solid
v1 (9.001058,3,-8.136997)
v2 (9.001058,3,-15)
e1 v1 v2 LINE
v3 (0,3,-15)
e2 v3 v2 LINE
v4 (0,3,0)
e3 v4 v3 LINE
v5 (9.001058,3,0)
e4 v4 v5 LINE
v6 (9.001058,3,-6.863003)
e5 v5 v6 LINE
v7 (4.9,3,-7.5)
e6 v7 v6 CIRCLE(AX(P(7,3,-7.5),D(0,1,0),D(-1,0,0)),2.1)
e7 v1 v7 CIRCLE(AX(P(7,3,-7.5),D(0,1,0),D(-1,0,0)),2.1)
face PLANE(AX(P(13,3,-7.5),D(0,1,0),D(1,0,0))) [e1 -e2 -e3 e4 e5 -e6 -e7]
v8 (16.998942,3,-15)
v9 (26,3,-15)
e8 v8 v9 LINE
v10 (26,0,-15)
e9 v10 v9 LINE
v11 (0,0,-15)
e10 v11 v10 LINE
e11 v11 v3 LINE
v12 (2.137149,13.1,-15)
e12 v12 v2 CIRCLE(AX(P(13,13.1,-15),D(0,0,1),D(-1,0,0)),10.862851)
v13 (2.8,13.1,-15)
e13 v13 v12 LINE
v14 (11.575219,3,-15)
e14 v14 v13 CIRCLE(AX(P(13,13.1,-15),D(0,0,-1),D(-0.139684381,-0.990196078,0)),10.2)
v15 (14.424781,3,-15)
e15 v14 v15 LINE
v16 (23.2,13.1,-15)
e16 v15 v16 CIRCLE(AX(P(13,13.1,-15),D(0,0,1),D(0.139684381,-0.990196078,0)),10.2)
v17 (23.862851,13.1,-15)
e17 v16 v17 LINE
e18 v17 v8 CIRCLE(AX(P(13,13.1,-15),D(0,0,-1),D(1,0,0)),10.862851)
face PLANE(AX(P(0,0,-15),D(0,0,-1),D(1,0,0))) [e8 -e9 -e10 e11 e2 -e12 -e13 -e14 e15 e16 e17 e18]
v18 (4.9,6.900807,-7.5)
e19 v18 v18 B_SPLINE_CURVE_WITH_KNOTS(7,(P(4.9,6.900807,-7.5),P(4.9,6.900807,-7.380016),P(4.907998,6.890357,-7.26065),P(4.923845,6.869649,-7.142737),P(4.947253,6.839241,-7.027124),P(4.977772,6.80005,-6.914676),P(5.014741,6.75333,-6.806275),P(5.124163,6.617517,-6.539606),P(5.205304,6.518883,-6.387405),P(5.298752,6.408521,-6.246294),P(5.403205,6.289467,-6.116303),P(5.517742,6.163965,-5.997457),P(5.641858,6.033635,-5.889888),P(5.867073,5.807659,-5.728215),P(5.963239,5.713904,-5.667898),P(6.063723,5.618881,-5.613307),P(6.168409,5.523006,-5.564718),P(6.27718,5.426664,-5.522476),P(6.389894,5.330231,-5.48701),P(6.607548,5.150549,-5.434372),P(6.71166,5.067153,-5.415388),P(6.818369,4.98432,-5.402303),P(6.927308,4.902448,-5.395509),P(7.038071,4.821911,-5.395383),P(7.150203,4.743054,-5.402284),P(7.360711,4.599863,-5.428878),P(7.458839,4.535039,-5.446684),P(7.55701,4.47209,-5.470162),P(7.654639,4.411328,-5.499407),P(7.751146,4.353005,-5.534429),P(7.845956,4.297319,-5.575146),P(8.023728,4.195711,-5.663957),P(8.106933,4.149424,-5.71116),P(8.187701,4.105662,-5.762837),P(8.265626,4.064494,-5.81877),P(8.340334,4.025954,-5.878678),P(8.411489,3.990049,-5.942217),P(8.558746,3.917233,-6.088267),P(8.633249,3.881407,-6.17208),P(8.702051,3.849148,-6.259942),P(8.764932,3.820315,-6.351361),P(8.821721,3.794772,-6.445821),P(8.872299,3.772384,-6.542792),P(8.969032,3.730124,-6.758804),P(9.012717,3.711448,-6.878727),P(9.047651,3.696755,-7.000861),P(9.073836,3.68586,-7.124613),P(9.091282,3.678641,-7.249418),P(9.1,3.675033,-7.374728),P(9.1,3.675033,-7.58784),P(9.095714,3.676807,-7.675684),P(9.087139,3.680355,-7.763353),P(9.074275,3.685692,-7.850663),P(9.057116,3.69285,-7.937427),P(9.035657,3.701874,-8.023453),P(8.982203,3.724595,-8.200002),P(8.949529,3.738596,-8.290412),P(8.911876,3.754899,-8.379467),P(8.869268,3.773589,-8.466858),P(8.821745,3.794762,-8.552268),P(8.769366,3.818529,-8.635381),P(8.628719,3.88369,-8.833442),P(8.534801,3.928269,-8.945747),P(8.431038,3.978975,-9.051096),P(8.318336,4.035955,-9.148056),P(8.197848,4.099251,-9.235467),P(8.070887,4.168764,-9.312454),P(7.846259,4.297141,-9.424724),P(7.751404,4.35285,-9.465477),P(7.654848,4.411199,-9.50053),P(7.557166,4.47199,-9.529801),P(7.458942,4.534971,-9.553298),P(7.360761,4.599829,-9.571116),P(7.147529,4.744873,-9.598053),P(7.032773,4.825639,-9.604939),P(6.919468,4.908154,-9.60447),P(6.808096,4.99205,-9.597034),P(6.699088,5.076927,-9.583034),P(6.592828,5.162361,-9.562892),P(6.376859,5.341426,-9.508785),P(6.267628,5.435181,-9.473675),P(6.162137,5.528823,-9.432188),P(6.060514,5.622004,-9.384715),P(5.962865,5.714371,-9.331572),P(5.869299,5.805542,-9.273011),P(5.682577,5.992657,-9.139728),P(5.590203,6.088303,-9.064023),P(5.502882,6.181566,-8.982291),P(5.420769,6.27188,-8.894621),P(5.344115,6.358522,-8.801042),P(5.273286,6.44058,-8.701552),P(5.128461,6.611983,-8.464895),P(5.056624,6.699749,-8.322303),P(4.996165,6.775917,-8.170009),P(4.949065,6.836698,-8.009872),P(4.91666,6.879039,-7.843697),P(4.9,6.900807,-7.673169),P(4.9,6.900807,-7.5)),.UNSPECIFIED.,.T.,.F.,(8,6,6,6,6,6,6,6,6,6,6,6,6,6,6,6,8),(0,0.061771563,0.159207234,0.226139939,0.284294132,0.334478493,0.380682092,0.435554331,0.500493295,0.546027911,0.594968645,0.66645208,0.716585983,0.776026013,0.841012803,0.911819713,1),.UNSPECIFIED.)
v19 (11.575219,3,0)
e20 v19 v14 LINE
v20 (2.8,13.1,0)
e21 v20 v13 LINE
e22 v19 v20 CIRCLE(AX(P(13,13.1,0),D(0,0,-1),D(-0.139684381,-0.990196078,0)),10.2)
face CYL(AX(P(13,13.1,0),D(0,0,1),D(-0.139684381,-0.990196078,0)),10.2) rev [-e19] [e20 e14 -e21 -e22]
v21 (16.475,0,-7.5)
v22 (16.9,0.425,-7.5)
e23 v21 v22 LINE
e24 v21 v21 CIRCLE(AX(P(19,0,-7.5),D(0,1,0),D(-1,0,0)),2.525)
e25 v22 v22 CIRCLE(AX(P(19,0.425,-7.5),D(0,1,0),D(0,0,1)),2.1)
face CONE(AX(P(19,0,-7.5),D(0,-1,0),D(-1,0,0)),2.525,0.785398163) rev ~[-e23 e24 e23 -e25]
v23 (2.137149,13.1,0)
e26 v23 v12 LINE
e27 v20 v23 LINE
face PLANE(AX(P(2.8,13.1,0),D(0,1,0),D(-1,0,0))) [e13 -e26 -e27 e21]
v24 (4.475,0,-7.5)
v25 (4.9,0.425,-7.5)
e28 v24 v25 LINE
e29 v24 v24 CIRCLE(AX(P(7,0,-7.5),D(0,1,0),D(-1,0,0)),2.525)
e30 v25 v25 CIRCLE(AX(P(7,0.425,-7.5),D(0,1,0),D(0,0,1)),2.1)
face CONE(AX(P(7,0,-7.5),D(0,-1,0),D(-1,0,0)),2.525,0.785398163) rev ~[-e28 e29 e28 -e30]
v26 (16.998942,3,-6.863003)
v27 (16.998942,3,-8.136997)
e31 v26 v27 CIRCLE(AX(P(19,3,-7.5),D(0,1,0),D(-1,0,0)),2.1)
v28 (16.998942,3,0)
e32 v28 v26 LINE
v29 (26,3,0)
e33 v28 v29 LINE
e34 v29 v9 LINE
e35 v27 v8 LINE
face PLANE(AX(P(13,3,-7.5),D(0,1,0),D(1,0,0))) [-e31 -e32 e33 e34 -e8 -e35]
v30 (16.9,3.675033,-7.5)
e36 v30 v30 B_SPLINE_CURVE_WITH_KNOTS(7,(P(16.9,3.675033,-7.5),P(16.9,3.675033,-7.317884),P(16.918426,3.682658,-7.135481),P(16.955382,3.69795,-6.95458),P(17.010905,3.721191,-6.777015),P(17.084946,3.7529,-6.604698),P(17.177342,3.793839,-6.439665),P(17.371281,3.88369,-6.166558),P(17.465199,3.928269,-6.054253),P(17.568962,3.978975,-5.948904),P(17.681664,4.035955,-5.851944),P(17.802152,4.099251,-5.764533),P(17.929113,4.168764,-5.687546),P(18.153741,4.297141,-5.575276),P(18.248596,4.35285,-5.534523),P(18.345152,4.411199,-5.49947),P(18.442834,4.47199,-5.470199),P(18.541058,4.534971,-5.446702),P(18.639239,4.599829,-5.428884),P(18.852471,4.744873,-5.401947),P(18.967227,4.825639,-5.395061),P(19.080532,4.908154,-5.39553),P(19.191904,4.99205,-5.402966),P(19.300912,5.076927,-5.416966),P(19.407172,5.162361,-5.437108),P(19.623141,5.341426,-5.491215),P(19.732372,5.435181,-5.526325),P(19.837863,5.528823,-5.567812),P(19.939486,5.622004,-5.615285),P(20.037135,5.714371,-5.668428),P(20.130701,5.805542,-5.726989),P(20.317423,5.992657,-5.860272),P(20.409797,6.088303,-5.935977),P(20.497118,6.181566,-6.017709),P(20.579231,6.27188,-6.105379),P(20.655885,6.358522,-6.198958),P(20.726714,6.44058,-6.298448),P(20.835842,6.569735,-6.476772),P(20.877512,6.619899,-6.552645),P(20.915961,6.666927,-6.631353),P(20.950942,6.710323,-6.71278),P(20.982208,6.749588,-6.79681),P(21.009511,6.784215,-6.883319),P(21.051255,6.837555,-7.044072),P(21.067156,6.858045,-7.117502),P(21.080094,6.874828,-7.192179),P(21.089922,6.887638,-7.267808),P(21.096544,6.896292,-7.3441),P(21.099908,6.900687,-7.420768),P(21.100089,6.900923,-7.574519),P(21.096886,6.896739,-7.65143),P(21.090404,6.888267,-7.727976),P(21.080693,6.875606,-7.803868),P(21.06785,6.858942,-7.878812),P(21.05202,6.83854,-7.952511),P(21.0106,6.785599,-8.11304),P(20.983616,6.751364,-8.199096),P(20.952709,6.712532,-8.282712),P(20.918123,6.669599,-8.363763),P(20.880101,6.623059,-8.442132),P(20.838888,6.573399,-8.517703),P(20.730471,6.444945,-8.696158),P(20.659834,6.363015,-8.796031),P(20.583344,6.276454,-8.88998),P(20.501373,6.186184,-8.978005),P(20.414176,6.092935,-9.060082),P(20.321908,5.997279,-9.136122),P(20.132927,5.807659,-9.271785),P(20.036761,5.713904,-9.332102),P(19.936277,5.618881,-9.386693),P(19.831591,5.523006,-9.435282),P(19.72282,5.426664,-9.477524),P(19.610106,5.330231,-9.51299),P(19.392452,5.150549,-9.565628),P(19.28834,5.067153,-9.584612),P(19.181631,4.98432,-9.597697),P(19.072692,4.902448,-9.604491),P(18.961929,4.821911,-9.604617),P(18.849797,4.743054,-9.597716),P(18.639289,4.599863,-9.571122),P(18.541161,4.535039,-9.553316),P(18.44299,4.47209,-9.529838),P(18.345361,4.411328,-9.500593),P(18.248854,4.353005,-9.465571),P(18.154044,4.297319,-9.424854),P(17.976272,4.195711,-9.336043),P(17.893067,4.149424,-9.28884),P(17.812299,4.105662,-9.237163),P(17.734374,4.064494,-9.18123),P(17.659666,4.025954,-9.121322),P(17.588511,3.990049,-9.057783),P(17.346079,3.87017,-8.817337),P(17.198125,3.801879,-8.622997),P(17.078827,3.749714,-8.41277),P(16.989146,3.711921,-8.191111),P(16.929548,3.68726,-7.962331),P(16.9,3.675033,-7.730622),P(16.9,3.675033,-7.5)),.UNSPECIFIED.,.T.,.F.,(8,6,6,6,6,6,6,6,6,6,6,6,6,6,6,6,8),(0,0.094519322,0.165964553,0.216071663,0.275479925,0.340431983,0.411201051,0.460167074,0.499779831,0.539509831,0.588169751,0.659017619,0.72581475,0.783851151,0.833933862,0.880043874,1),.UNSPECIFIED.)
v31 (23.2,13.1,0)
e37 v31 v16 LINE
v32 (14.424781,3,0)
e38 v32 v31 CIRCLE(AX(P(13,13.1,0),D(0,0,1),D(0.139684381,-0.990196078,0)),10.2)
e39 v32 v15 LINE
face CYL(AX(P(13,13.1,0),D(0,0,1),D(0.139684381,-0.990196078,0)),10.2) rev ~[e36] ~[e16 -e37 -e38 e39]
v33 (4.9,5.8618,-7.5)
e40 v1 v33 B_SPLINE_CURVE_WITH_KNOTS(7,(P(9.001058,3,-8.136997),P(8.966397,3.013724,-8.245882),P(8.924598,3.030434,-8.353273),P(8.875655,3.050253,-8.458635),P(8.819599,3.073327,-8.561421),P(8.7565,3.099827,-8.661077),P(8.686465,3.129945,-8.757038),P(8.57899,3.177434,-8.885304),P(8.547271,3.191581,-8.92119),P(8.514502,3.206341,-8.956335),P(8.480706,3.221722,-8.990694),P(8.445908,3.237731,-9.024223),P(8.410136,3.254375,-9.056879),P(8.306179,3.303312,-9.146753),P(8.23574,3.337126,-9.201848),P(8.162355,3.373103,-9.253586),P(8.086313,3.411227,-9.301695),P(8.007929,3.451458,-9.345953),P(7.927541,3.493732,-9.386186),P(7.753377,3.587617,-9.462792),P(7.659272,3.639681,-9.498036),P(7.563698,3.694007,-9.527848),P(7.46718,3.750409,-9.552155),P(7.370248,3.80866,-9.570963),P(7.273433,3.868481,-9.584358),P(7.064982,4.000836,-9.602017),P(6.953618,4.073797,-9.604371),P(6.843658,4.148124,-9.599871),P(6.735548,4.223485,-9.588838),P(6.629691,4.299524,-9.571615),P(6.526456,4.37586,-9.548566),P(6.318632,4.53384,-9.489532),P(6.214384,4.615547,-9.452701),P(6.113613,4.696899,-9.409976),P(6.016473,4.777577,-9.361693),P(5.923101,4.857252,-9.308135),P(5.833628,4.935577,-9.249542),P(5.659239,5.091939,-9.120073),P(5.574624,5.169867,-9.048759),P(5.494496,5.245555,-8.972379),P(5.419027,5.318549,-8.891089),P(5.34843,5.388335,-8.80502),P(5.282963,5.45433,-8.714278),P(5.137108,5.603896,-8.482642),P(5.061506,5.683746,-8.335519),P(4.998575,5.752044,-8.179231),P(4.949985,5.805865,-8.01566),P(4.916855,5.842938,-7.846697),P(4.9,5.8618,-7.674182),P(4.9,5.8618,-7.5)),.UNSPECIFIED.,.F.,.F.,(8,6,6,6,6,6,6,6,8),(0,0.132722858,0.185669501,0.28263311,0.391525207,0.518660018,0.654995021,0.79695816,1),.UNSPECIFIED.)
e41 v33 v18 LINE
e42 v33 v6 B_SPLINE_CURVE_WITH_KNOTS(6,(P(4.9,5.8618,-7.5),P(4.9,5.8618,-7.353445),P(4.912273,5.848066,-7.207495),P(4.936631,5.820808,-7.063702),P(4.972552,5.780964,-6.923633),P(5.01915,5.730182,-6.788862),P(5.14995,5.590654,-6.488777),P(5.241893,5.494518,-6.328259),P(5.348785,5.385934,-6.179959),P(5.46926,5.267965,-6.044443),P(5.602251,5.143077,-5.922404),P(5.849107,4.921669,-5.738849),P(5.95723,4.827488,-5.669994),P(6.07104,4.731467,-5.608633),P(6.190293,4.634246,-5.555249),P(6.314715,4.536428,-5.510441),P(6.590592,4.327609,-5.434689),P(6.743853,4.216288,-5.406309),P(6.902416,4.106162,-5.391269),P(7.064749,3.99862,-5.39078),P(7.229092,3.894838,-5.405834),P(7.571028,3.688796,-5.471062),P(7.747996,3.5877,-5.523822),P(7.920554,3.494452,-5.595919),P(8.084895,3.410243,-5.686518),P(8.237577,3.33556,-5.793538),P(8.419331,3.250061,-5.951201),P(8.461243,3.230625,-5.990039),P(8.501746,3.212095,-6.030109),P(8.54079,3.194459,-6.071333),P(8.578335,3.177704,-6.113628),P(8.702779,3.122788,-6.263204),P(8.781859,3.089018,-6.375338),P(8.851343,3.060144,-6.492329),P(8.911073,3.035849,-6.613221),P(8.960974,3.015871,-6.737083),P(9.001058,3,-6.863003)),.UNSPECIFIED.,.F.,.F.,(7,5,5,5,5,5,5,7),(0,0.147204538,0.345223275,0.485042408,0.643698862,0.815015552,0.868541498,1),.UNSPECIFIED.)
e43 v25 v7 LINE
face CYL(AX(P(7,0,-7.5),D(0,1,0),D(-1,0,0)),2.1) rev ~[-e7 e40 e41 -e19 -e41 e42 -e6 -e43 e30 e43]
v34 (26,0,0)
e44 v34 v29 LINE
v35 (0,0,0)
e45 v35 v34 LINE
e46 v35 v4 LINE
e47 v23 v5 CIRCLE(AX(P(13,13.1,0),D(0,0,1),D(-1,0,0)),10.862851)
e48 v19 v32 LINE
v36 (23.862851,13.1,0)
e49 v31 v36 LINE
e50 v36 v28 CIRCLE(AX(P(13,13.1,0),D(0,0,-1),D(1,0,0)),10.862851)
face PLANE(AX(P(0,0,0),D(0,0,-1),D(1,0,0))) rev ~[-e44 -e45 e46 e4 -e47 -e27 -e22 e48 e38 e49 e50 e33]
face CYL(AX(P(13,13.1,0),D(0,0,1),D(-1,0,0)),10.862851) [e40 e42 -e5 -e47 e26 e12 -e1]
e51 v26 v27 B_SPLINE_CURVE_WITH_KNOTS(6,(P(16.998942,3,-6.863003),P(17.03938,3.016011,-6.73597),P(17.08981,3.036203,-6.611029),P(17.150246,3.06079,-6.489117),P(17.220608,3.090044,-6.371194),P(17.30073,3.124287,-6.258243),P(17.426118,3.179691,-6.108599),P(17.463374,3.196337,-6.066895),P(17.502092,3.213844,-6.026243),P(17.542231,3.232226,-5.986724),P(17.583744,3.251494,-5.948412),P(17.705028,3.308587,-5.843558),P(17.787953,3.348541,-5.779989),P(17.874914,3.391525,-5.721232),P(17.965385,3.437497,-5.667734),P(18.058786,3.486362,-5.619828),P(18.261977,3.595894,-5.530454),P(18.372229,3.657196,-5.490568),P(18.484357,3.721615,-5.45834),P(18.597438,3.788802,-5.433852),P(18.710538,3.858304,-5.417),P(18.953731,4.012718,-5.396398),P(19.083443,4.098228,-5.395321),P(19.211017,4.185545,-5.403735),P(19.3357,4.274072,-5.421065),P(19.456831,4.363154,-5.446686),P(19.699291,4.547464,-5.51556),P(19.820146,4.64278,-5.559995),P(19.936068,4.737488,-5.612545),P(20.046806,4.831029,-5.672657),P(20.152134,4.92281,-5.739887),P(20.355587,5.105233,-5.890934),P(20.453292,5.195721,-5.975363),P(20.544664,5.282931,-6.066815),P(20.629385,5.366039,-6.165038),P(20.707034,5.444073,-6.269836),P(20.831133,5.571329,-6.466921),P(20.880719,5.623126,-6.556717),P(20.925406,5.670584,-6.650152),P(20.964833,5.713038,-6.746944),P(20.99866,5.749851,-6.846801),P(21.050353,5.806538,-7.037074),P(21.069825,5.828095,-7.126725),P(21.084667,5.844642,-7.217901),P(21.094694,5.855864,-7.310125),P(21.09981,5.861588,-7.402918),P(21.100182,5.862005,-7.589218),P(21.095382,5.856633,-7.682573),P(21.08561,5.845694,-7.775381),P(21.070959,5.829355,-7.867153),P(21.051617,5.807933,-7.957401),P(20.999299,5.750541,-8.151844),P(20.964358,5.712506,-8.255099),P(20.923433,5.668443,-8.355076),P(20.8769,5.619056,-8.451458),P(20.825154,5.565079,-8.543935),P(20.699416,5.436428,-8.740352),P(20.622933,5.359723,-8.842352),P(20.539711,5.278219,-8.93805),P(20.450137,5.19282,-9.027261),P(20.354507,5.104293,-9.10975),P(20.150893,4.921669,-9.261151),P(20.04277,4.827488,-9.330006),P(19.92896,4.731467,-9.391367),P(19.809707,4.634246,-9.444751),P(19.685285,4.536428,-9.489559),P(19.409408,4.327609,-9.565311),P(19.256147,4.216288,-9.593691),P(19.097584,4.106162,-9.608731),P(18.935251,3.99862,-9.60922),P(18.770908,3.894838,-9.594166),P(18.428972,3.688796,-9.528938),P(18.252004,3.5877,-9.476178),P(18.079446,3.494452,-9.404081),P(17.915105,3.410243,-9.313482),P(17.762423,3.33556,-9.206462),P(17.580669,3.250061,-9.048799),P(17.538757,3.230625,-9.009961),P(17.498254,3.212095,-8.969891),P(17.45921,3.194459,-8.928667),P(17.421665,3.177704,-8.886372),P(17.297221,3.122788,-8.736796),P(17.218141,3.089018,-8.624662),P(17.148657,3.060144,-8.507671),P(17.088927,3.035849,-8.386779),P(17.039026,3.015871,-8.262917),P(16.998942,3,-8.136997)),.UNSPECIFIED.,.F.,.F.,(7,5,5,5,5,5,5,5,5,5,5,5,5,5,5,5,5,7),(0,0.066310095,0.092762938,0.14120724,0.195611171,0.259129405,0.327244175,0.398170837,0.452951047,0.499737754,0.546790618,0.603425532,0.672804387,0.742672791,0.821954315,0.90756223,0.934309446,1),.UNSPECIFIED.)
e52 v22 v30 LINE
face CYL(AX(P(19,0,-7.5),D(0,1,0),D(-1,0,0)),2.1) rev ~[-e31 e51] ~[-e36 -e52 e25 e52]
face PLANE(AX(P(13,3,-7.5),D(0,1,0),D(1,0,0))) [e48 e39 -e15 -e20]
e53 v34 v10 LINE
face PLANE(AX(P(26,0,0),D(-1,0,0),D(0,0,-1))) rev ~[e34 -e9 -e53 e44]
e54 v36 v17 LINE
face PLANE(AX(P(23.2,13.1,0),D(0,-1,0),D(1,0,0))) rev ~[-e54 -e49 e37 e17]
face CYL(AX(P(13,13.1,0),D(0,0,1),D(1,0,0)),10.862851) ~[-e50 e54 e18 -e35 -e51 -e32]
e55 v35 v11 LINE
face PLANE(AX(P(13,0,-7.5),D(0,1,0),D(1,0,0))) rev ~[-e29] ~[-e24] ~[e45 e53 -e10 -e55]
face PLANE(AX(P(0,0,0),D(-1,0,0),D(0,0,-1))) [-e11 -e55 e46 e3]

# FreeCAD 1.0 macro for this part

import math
import FreeCAD as App
import Part
import Sketcher

V = App.Vector

doc = App.newDocument("Part")
body = doc.addObject("PartDesign::Body", "Body")

# Sketch on XZ plane
sketch1 = doc.addObject("Sketcher::SketchObject", "Sketch")
body.addObject(sketch1)
sketch1.AttachmentSupport = (doc.XZ_Plane, [""])
sketch1.MapMode = "FlatFace"
sketch1.addGeometry([
    Part.LineSegment(V(0, -15, 0), V(0, 0, 0)),
    Part.LineSegment(V(0, 0, 0), V(26, 0, 0)),
    Part.LineSegment(V(26, 0, 0), V(26, -15, 0)),
    Part.LineSegment(V(26, -15, 0), V(0, -15, 0)),
], False)
sketch1.addConstraint([
    Sketcher.Constraint("Coincident", 0, 2, 1, 1),
    Sketcher.Constraint("Coincident", 1, 2, 2, 1),
    Sketcher.Constraint("Coincident", 2, 2, 3, 1),
    Sketcher.Constraint("Coincident", 3, 2, 0, 1),
    Sketcher.Constraint("Vertical", 0),
    Sketcher.Constraint("Horizontal", 1),
    Sketcher.Constraint("Vertical", 2),
    Sketcher.Constraint("Horizontal", 3),
    Sketcher.Constraint("Coincident", 0, 2, -1, 1),
    Sketcher.Constraint("DistanceX", 1, 1, 1, 2, 26.0),
    Sketcher.Constraint("DistanceY", 0, 1, 0, 2, 15.0),
])
pad1 = doc.addObject("PartDesign::Pad", "Pad")
body.addObject(pad1)
pad1.Profile = sketch1
pad1.Length = 3
pad1.Reversed = True

# Sketch on XY plane
sketch2 = doc.addObject("Sketcher::SketchObject", "Sketch001")
body.addObject(sketch2)
sketch2.AttachmentSupport = (doc.XY_Plane, [""])
sketch2.MapMode = "FlatFace"
sketch2.addGeometry([
    Part.LineSegment(V(9, 3, 0), V(11.6, 3, 0)),  # 0
    Part.ArcOfCircle(Part.Circle(V(13, 13.1, 0), V(0, 0, 1), 10.2), math.radians(180), math.radians(262)),  # 1
    Part.LineSegment(V(2.8, 13.1, 0), V(2.1, 13.1, 0)),  # 2
    Part.ArcOfCircle(Part.Circle(V(13, 13.1, 0), V(0, 0, 1), 10.9), math.radians(180), math.radians(248)),  # 3
    Part.LineSegment(V(23.9, 13.1, 0), V(23.2, 13.1, 0)),  # 4
    Part.ArcOfCircle(Part.Circle(V(13, 13.1, 0), V(0, 0, 1), 10.2), math.radians(-82), math.radians(0)),  # 5
    Part.LineSegment(V(14.4, 3, 0), V(17, 3, 0)),  # 6
    Part.ArcOfCircle(Part.Circle(V(13, 13.1, 0), V(0, 0, 1), 10.9), math.radians(-68), math.radians(0)),  # 7
], False)
sketch2.addConstraint([
    Sketcher.Constraint("Coincident", 0, 2, 1, 2),
    Sketcher.Constraint("Coincident", 1, 1, 2, 1),
    Sketcher.Constraint("Coincident", 2, 2, 3, 1),
    Sketcher.Constraint("Coincident", 3, 2, 0, 1),
    Sketcher.Constraint("Coincident", 4, 2, 5, 2),
    Sketcher.Constraint("Coincident", 5, 1, 6, 1),
    Sketcher.Constraint("Coincident", 6, 2, 7, 1),
    Sketcher.Constraint("Coincident", 7, 2, 4, 1),
    Sketcher.Constraint("Horizontal", 0),
    Sketcher.Constraint("Horizontal", 2),
    Sketcher.Constraint("Horizontal", 4),
    Sketcher.Constraint("Horizontal", 6),
    Sketcher.Constraint("Coincident", 3, 3, 1, 3),
    Sketcher.Constraint("Coincident", 5, 3, 1, 3),
    Sketcher.Constraint("Coincident", 7, 3, 1, 3),
    Sketcher.Constraint("Equal", 1, 5),
    Sketcher.Constraint("Equal", 3, 7),
    Sketcher.Constraint("Horizontal", 7, 3, 1, 1),
    Sketcher.Constraint("Horizontal", 2, 2, 4, 2),
    Sketcher.Constraint("Horizontal", 3, 2, 5, 1),
    Sketcher.Constraint("Radius", 1, 10.2),
    Sketcher.Constraint("DistanceX", -1, 1, 1, 3, 13.0),
    Sketcher.Constraint("DistanceY", -1, 1, 0, 2, 3.0),
    Sketcher.Constraint("DistanceY", -1, 1, 1, 3, 13.1),
    Sketcher.Constraint("Radius", 3, 10.862851),
])
pad2 = doc.addObject("PartDesign::Pad", "Pad001")
body.addObject(pad2)
pad2.Profile = sketch2
pad2.Length = 15
pad2.Reversed = True

# Sketch on XZ plane
sketch3 = doc.addObject("Sketcher::SketchObject", "Sketch002")
body.addObject(sketch3)
sketch3.AttachmentSupport = (doc.XZ_Plane, [""])
sketch3.MapMode = "FlatFace"
sketch3.addGeometry([
    Part.Circle(V(7, -7.5, 0), V(0, 0, 1), 2.1),
    Part.Circle(V(19, -7.5, 0), V(0, 0, 1), 2.1),
], False)
sketch3.addConstraint([
    Sketcher.Constraint("Equal", 0, 1),
    Sketcher.Constraint("Horizontal", 0, 3, 1, 3),
    Sketcher.Constraint("Diameter", 0, 4.2),
    Sketcher.Constraint("DistanceX", -1, 1, 0, 3, 7.0),
    Sketcher.Constraint("DistanceX", -1, 1, 1, 3, 19.0),
    Sketcher.Constraint("DistanceY", 0, 3, -1, 1, 7.5),
])
doc.recompute()
hole = doc.addObject("PartDesign::Hole", "Hole")
body.addObject(hole)
hole.Profile = sketch3
hole.ThreadType = "None"
hole.Diameter = 4.2
hole.DepthType = "Dimension"
hole.Depth = 12.4
hole.DrillPoint = "Angled"
hole.DrillPointAngle = 118
hole.HoleCutType = "Countersink"
hole.HoleCutDiameter = 5.05
hole.HoleCutCountersinkAngle = 90

doc.recompute()
